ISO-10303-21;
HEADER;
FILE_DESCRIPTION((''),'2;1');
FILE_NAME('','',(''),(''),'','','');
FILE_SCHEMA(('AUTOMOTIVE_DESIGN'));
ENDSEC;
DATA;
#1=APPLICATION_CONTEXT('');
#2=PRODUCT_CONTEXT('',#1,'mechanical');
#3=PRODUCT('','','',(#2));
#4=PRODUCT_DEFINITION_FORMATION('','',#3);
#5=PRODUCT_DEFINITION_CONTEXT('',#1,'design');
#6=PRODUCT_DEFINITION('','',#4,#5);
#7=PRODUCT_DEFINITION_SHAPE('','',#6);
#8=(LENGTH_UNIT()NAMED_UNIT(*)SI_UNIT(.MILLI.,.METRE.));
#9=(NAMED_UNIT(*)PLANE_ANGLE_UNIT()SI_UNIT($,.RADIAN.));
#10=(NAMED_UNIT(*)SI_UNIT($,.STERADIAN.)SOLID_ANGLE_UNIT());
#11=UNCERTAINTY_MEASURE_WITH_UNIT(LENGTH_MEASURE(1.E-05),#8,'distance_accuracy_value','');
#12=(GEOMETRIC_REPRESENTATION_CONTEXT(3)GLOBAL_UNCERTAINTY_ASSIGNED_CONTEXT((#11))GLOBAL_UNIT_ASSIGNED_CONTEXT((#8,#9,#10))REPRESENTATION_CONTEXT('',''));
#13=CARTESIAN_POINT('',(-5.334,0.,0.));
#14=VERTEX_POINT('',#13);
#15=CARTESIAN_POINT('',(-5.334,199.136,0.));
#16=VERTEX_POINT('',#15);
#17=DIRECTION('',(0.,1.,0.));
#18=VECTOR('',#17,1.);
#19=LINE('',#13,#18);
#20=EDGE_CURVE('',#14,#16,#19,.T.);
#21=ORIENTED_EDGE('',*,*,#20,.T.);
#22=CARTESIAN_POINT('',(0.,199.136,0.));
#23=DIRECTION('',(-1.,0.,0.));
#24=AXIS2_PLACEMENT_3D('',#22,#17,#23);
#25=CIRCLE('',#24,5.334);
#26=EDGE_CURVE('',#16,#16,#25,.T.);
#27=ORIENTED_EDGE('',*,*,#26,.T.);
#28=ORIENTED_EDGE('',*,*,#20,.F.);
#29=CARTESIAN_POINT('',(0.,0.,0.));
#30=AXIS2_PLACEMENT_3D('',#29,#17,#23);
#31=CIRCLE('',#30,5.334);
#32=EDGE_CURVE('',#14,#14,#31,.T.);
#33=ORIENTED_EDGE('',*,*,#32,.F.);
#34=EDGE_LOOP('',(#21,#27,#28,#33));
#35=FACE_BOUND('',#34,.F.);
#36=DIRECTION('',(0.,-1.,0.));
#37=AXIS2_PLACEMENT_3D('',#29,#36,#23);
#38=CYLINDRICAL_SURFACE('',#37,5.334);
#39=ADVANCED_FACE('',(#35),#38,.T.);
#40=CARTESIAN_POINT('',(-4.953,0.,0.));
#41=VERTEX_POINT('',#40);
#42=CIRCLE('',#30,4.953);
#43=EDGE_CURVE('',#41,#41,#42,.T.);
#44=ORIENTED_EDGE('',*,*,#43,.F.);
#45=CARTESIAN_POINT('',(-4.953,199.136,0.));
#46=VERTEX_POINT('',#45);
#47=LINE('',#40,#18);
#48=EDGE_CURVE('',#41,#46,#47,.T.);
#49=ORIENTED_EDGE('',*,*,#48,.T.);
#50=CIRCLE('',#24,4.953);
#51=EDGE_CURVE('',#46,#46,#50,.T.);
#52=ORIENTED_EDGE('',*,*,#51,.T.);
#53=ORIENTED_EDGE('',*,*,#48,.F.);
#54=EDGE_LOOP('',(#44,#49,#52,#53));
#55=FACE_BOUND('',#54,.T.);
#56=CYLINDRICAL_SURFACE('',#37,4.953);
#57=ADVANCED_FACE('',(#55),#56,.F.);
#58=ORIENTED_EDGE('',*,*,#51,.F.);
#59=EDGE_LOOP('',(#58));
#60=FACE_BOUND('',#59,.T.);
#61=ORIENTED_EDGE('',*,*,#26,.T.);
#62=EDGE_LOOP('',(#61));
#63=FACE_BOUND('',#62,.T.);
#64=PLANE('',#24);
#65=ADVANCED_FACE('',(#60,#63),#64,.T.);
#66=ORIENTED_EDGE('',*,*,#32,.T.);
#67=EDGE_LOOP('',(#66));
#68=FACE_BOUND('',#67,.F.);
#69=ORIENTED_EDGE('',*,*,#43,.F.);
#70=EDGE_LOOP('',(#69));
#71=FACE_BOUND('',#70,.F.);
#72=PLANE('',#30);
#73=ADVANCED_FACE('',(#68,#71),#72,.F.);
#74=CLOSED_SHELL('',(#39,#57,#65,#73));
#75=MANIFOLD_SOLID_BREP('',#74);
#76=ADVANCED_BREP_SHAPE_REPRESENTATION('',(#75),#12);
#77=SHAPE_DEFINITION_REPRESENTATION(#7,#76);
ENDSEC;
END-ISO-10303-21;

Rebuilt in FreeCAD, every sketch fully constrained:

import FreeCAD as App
import Part
import Sketcher
Q = App.Units.Quantity

doc = App.newDocument("Part")
body = doc.addObject("PartDesign::Body", "Body")

# Sketch on XZ plane
sketch1 = body.newObject("Sketcher::SketchObject", "Sketch")
sketch1.AttachmentSupport = (doc.getObject("XZ_Plane"), [""])
sketch1.MapMode = "FlatFace"
sketch1.addGeometry([
    Part.Circle(App.Vector(0, 0, 0), App.Vector(0, 0, 1), 5.334),
    Part.Circle(App.Vector(0, 0, 0), App.Vector(0, 0, 1), 4.953),
], False)
sketch1.addConstraint([
    Sketcher.Constraint("Coincident", 0, 3, -1, 1),
    Sketcher.Constraint("Coincident", 1, 3, -1, 1),
    Sketcher.Constraint("Diameter", 0, Q("0.42 in")),
    Sketcher.Constraint("Diameter", 1, Q("0.39 in")),
])
pad1 = body.newObject("PartDesign::Pad", "Pad")
pad1.Profile = sketch1
pad1.Length = Q("7.84 in")
pad1.Reversed = True

doc.recompute()
